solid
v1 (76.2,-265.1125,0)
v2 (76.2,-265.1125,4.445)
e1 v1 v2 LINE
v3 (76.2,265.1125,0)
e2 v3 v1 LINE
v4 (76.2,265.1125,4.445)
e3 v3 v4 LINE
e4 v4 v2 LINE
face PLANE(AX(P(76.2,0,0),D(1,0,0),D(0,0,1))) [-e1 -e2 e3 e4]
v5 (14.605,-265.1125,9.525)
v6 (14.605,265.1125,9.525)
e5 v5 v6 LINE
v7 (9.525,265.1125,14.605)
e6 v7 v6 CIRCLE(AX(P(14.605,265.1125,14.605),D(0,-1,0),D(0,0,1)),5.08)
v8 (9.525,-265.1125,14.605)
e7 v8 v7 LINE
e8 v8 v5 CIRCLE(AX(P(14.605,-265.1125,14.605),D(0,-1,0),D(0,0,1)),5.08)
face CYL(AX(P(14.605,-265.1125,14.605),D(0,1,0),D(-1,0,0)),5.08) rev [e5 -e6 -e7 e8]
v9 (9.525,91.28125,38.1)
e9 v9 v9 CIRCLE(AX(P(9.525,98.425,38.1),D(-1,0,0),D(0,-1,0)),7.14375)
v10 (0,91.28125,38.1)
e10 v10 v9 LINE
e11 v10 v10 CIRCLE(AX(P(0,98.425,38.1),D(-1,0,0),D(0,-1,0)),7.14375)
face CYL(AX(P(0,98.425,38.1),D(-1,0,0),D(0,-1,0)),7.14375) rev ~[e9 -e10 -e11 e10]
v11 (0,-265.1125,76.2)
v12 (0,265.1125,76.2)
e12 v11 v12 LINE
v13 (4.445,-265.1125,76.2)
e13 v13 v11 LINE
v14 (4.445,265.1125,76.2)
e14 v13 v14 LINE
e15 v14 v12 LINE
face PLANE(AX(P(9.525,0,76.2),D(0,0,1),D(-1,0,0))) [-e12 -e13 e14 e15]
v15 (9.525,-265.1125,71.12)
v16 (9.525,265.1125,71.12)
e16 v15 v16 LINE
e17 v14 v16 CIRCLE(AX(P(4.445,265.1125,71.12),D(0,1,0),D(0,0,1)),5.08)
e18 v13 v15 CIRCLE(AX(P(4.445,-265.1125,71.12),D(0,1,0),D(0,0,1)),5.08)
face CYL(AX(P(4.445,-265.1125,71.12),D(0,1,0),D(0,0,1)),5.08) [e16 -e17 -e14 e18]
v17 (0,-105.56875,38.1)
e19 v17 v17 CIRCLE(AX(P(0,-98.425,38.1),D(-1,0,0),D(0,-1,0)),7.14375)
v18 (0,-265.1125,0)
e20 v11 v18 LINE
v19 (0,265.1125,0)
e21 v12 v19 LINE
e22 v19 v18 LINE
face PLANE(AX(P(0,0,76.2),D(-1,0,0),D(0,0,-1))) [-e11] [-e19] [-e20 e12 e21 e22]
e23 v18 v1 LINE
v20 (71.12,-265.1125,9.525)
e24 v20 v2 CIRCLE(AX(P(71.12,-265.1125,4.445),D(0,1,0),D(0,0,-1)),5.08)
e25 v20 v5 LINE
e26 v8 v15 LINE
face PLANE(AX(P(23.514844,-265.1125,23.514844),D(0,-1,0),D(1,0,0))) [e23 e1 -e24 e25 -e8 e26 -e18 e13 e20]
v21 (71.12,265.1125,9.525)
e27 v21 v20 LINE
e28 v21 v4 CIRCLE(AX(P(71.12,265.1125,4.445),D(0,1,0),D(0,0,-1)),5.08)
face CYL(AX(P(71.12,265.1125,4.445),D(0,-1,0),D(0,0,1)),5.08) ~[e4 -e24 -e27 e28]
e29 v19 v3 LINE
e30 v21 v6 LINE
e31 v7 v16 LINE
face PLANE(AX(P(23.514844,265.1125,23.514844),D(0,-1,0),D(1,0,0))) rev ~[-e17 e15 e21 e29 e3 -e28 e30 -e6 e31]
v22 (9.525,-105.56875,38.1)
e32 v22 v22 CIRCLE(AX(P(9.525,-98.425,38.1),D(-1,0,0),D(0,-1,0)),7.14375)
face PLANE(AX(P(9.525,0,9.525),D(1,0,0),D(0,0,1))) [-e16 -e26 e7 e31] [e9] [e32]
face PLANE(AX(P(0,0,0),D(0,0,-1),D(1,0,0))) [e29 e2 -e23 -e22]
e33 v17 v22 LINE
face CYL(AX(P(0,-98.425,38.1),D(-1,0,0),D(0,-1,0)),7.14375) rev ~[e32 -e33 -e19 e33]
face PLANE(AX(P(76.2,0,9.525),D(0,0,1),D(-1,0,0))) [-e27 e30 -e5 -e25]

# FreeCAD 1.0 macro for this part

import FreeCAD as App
import Part
import Sketcher

V = App.Vector
Q = App.Units.Quantity


def edges_at(feature, points):
    """Names of the edges that pass closest to the given points."""
    edges = feature.Shape.Edges
    near = lambda p: min(range(len(edges)), key=lambda i: edges[i].distToShape(Part.Vertex(*p))[0])
    return sorted({f"Edge{near(p) + 1}" for p in points})


def add_polygon(sketch, points):
    """Adds a closed chain of lines whose ends are joined by coincident constraints."""
    first, n = sketch.GeometryCount, len(points)
    for a, b in zip(points, points[1:] + points[:1]):
        sketch.addGeometry(Part.LineSegment(App.Vector(*a, 0), App.Vector(*b, 0)), False)
    for i in range(n):
        sketch.addConstraint(Sketcher.Constraint("Coincident", first + i, 2, first + (i + 1) % n, 1))

doc = App.newDocument("Part")
body = doc.addObject("PartDesign::Body", "Body")

# Sketch on XZ plane
sketch1 = body.newObject("Sketcher::SketchObject", "Sketch")
sketch1.AttachmentSupport = (doc.getObject("XZ_Plane"), [""])
sketch1.MapMode = "FlatFace"
add_polygon(sketch1, [(0, 76), (0, 0), (76, 0), (76, 10), (10, 10), (10, 76)])  # lines 0-5
sketch1.addConstraint([
    Sketcher.Constraint("Vertical", 0),
    Sketcher.Constraint("Horizontal", 1),
    Sketcher.Constraint("Vertical", 2),
    Sketcher.Constraint("Horizontal", 3),
    Sketcher.Constraint("Vertical", 4),
    Sketcher.Constraint("Horizontal", 5),
    Sketcher.Constraint("Coincident", 0, 2, -1, 1),
    Sketcher.Constraint("Equal", 1, 0),
    Sketcher.Constraint("Equal", 5, 2),
    Sketcher.Constraint("DistanceX", 1, 1, 1, 2, Q("3 in")),
    Sketcher.Constraint("DistanceX", 3, 2, 3, 1, Q("2.625 in")),
])
pad1 = body.newObject("PartDesign::Pad", "Pad")
pad1.Profile = sketch1
pad1.Length = Q("20.875 in")
pad1.Midplane = True
doc.recompute()

fillet = body.newObject("PartDesign::Fillet", "Fillet")
fillet.Base = (pad1, edges_at(pad1, [(9.525, 0, 76.2), (9.525, 0, 9.525), (76.2, 0, 9.525)]))
fillet.Radius = Q("0.2 in")

# Sketch on YZ plane
sketch2 = body.newObject("Sketcher::SketchObject", "Sketch001")
sketch2.AttachmentSupport = (doc.getObject("YZ_Plane"), [""])
sketch2.MapMode = "FlatFace"
sketch2.addGeometry([
    Part.Circle(V(98, 38, 0), V(0, 0, 1), 7),
    Part.Circle(V(-98, 38, 0), V(0, 0, 1), 7),
], False)
sketch2.addConstraint([
    Sketcher.Constraint("Equal", 0, 1),
    Sketcher.Constraint("Symmetric", 0, 3, 1, 3, -2),
    Sketcher.Constraint("Diameter", 0, Q("0.5625 in")),
    Sketcher.Constraint("DistanceY", -1, 1, 0, 3, Q("1.5 in")),
    Sketcher.Constraint("DistanceX", 1, 3, 0, 3, Q("7.75 in")),
])
pocket1 = body.newObject("PartDesign::Pocket", "Pocket")
pocket1.Profile = sketch2
pocket1.Length = Q("1 in")
pocket1.Reversed = True

doc.recompute()
